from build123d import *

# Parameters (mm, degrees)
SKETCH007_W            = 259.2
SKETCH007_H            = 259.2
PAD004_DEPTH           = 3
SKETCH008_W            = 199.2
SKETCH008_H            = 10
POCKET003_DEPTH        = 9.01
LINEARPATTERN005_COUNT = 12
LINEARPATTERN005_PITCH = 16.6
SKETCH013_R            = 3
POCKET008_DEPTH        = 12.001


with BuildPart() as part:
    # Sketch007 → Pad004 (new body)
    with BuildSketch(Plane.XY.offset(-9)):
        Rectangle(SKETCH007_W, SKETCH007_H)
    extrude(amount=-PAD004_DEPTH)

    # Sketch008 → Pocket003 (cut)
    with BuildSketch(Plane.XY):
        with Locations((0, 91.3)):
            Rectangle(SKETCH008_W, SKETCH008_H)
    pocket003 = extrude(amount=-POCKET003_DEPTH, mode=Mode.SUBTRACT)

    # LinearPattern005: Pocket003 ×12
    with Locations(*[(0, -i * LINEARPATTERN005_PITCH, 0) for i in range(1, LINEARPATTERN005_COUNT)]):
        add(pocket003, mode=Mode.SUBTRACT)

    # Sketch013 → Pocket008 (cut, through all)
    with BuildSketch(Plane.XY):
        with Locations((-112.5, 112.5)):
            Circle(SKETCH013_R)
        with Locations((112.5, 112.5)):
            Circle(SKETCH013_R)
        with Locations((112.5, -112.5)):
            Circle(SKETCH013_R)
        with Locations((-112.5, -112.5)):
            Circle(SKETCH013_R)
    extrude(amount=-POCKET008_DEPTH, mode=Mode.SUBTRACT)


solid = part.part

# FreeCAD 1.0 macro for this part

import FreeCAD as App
import Part
import Sketcher
from FreeCAD import Vector
Q = App.Units.Quantity


def add_polygon(sketch, points):
    """Adds a closed chain of lines whose ends are joined by coincident constraints."""
    first, n = sketch.GeometryCount, len(points)
    for a, b in zip(points, points[1:] + points[:1]):
        sketch.addGeometry(Part.LineSegment(App.Vector(*a, 0), App.Vector(*b, 0)), False)
    for i in range(n):
        sketch.addConstraint(Sketcher.Constraint("Coincident", first + i, 2, first + (i + 1) % n, 1))

doc = App.newDocument("Part")
body = doc.addObject("PartDesign::Body", "Body")

# Sketch on XY plane
sketch1 = body.newObject("Sketcher::SketchObject", "Sketch")
sketch1.AttachmentSupport = (doc.getObject("XY_Plane"), [""])
sketch1.MapMode = "FlatFace"
sketch1.AttachmentOffset = App.Placement(Vector(0, 0, -9), App.Rotation())
add_polygon(sketch1, [(-130, 130), (-130, -130), (130, -130), (130, 130)])  # lines 0-3
sketch1.addConstraint(Sketcher.Constraint("Vertical", 0))
sketch1.addConstraint(Sketcher.Constraint("Horizontal", 1))
sketch1.addConstraint(Sketcher.Constraint("Vertical", 2))
sketch1.addConstraint(Sketcher.Constraint("Horizontal", 3))
sketch1.addConstraint(Sketcher.Constraint("Symmetric", 0, 2, 2, 2, -1, 1))
sketch1.addConstraint(Sketcher.Constraint("Equal", 3, 0))
sketch1.addConstraint(Sketcher.Constraint("DistanceX", 1, 1, 1, 2, Q("259.2 mm")))
pad1 = body.newObject("PartDesign::Pad", "Pad")
pad1.Profile = sketch1
pad1.Length = 3
pad1.Reversed = True

# Sketch on XY plane
sketch2 = body.newObject("Sketcher::SketchObject", "Sketch001")
sketch2.AttachmentSupport = (doc.getObject("XY_Plane"), [""])
sketch2.MapMode = "FlatFace"
add_polygon(sketch2, [(-100, 96), (-100, 86), (100, 86), (100, 96)])  # lines 0-3
sketch2.addConstraint(Sketcher.Constraint("Vertical", 0))
sketch2.addConstraint(Sketcher.Constraint("Horizontal", 1))
sketch2.addConstraint(Sketcher.Constraint("Vertical", 2))
sketch2.addConstraint(Sketcher.Constraint("Horizontal", 3))
sketch2.addConstraint(Sketcher.Constraint("DistanceY", 0, 2, 0, 1, Q("10 mm")))
sketch2.addConstraint(Sketcher.Constraint("DistanceX", 1, 1, 1, 2, Q("199.2 mm")))
sketch2.addConstraint(Sketcher.Constraint("DistanceX", 0, 2, -1, 1, Q("99.6 mm")))
sketch2.addConstraint(Sketcher.Constraint("DistanceY", -1, 1, 0, 2, Q("86.3 mm")))
pocket1 = body.newObject("PartDesign::Pocket", "Pocket")
pocket1.Profile = sketch2
pocket1.Length = 9.01
doc.recompute()

linearpattern = body.newObject("PartDesign::LinearPattern", "LinearPattern")
linearpattern.Originals = [pocket1]
linearpattern.Direction = (doc.getObject("Y_Axis"), [""])
linearpattern.Mode = "offset"
linearpattern.Offset = 16.6
linearpattern.Occurrences = 12
linearpattern.Reversed = True
body.Tip = linearpattern

# Sketch on XY plane
sketch3 = body.newObject("Sketcher::SketchObject", "Sketch002")
sketch3.AttachmentSupport = (doc.getObject("XY_Plane"), [""])
sketch3.MapMode = "FlatFace"
sketch3.addGeometry(Part.Circle(Vector(-112.5, 112.5, 0), Vector(0, 0, 1), 3), False)
sketch3.addGeometry(Part.Circle(Vector(112.5, 112.5, 0), Vector(0, 0, 1), 3), False)
sketch3.addGeometry(Part.Circle(Vector(112.5, -112.5, 0), Vector(0, 0, 1), 3), False)
sketch3.addGeometry(Part.Circle(Vector(-112.5, -112.5, 0), Vector(0, 0, 1), 3), False)
sketch3.addConstraint(Sketcher.Constraint("Equal", 0, 1))
sketch3.addConstraint(Sketcher.Constraint("Equal", 1, 2))
sketch3.addConstraint(Sketcher.Constraint("Equal", 2, 3))
sketch3.addConstraint(Sketcher.Constraint("Symmetric", 0, 3, 2, 3, -1, 1))
sketch3.addConstraint(Sketcher.Constraint("Symmetric", 1, 3, 3, 3, -1, 1))
sketch3.addConstraint(Sketcher.Constraint("Symmetric", 0, 3, 1, 3, -2))
sketch3.addConstraint(Sketcher.Constraint("Diameter", 0, Q("6 mm")))
sketch3.addConstraint(Sketcher.Constraint("DistanceX", 0, 3, 1, 3, Q("225 mm")))
sketch3.addConstraint(Sketcher.Constraint("DistanceY", 2, 3, 1, 3, Q("225 mm")))
pocket2 = body.newObject("PartDesign::Pocket", "Pocket001")
pocket2.Profile = sketch3
pocket2.Type = "ThroughAll"

doc.recompute()
